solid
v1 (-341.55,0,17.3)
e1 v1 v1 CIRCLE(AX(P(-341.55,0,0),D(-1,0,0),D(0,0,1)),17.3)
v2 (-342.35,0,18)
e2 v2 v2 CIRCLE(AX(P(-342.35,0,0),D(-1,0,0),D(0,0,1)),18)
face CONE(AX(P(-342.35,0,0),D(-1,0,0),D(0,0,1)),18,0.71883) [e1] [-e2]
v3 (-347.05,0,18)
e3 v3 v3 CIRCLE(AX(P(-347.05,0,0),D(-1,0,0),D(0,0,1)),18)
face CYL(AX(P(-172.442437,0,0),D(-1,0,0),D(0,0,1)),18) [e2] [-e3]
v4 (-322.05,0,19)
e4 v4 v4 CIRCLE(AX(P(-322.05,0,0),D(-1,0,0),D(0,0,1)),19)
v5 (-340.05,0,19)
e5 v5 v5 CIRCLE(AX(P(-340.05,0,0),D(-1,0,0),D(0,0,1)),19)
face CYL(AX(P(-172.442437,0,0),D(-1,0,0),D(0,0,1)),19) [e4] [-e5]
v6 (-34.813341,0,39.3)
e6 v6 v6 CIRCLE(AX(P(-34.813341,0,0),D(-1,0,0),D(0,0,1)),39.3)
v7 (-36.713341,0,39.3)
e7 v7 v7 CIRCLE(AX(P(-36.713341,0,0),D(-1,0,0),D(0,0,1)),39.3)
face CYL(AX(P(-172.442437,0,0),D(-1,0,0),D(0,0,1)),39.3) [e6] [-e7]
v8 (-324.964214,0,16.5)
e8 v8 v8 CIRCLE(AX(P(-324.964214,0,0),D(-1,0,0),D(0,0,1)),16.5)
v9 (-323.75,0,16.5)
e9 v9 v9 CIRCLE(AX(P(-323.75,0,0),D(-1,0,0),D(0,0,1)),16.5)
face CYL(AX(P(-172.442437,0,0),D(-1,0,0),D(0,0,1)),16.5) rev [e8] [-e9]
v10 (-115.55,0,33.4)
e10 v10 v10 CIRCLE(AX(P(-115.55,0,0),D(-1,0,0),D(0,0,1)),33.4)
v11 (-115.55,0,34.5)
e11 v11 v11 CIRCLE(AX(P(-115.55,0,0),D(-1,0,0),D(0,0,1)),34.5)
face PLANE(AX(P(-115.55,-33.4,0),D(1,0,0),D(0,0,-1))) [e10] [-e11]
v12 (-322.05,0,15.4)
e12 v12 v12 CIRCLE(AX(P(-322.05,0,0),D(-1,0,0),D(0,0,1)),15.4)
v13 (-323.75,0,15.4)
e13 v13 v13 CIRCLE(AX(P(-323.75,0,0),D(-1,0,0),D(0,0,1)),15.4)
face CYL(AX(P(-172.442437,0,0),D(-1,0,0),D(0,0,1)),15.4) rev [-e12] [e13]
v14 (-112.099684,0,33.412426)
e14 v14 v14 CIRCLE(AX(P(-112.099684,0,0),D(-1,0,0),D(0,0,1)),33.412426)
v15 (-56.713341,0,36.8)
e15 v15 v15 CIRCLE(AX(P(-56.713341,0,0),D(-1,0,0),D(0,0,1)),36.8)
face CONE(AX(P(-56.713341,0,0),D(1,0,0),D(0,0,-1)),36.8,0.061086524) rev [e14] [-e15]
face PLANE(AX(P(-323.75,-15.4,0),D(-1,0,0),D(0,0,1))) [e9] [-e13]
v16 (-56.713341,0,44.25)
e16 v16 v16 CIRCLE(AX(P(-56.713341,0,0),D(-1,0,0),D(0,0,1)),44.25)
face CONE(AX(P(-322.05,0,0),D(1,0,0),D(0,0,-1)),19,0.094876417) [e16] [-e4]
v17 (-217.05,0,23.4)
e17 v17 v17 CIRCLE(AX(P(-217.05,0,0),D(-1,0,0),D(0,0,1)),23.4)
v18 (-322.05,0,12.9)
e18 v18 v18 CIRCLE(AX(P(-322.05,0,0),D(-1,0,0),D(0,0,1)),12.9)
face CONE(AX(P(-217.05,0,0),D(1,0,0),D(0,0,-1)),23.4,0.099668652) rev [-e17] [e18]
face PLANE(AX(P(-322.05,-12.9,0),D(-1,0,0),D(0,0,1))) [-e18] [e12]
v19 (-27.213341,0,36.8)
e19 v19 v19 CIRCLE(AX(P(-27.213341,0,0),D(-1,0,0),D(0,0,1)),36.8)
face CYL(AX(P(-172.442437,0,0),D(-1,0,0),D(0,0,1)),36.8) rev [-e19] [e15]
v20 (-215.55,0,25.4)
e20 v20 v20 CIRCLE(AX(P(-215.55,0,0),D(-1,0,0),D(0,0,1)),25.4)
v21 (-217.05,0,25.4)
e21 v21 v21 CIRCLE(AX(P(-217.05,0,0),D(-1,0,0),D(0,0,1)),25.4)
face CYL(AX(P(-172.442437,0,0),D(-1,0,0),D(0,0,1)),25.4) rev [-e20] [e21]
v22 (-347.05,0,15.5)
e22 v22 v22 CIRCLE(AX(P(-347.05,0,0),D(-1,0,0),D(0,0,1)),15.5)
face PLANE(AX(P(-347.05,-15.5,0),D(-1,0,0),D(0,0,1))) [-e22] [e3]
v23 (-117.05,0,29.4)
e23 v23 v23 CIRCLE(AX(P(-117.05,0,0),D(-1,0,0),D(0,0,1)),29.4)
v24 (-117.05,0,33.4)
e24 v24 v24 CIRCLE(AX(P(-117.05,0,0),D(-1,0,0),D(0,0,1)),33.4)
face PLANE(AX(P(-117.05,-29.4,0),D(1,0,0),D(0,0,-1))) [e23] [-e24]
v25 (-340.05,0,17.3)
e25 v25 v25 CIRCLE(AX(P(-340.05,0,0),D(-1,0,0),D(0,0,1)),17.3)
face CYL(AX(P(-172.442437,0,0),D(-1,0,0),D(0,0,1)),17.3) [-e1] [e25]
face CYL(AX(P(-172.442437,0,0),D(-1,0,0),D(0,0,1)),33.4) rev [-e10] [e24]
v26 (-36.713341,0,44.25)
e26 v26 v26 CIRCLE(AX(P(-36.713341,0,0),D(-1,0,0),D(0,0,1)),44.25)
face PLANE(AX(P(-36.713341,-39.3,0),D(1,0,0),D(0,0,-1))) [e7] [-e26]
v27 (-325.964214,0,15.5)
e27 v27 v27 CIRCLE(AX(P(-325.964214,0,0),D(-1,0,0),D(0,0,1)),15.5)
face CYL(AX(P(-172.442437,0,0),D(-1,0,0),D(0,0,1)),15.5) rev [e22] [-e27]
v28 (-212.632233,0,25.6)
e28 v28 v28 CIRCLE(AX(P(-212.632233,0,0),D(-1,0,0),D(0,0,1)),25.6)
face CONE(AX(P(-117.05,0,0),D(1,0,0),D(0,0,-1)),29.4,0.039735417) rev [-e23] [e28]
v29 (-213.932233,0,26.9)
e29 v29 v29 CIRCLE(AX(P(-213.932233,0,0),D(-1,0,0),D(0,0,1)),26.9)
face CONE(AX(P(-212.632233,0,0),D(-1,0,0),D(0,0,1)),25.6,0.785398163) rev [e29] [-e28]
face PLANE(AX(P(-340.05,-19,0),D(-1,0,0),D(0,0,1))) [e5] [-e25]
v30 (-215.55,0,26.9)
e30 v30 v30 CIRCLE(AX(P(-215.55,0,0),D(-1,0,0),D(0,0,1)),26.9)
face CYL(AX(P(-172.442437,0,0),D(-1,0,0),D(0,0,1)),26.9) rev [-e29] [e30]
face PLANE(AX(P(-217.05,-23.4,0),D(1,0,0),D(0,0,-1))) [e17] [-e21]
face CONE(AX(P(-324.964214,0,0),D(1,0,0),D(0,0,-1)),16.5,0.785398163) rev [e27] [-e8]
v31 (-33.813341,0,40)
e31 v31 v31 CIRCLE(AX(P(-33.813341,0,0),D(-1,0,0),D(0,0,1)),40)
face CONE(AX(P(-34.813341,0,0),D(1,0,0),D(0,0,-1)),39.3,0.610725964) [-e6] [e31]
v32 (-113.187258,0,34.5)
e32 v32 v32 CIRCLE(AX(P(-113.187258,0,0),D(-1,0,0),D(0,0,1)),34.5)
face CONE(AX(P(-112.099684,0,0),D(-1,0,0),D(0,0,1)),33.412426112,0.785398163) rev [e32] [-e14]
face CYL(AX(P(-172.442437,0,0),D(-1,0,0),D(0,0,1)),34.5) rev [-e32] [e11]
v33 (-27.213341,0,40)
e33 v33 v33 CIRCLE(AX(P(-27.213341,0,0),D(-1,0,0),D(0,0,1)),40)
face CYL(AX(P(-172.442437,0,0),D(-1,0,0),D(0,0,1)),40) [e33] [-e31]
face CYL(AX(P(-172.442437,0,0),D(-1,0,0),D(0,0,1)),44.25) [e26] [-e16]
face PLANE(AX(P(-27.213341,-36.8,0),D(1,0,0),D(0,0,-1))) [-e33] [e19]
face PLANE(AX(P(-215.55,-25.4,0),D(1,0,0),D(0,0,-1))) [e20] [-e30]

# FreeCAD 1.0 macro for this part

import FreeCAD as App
import Part
import Sketcher
Q = App.Units.Quantity


def add_polygon(sketch, points):
    """Adds a closed chain of lines whose ends are joined by coincident constraints."""
    first, n = sketch.GeometryCount, len(points)
    for a, b in zip(points, points[1:] + points[:1]):
        sketch.addGeometry(Part.LineSegment(App.Vector(*a, 0), App.Vector(*b, 0)), False)
    for i in range(n):
        sketch.addConstraint(Sketcher.Constraint("Coincident", first + i, 2, first + (i + 1) % n, 1))

doc = App.newDocument("Part")
params = doc.addObject("Spreadsheet::Sheet", "Params")
for row, (alias, value) in enumerate([
    ("sketch1_width", "20 mm"),
    ("sketch1_width2", "18 mm"),
    ("sketch1_height", "4 mm"),
    ("sketch1_height2", "2 mm"),
    ("sketch1_width3", "1.9 mm"),
    ("revolution_angle", "360 deg"),
], start=1):
    params.set(f"A{row}", alias)
    params.set(f"B{row}", "=" + value)
    params.setAlias(f"B{row}", alias)

body = doc.addObject("PartDesign::Body", "Body")

# Sketch on XY plane
sketch1 = doc.addObject("Sketcher::SketchObject", "Sketch")
body.addObject(sketch1)
sketch1.AttachmentSupport = (doc.XY_Plane, [""])
sketch1.MapMode = "FlatFace"
add_polygon(sketch1, [(-56.7, -44.2), (-36.7, -44.2), (-36.7, -39.3), (-34.8, -39.3), (-33.8, -40), (-27.2, -40), (-27.2, -36.8), (-56.7, -36.8), (-112.1, -33.4), (-113.2, -34.5), (-115.5, -34.5), (-115.5, -33.4), (-117, -33.4), (-117, -29.4), (-212.6, -25.6), (-213.9, -26.9), (-215.6, -26.9), (-215.6, -25.4), (-217.1, -25.4), (-217.1, -23.4), (-322.1, -12.9), (-322.1, -15.4), (-323.8, -15.4), (-323.8, -16.5), (-325, -16.5), (-326, -15.5), (-347.1, -15.5), (-347.1, -18), (-342.4, -18), (-341.6, -17.3), (-340.1, -17.3), (-340.1, -19), (-322.1, -19)])  # lines 0-32
sketch1.addConstraint([
    Sketcher.Constraint("Horizontal", 0),
    Sketcher.Constraint("Vertical", 1),
    Sketcher.Constraint("Horizontal", 2),
    Sketcher.Constraint("Horizontal", 4),
    Sketcher.Constraint("Vertical", 5),
    Sketcher.Constraint("Horizontal", 6),
    Sketcher.Constraint("Horizontal", 9),
    Sketcher.Constraint("Vertical", 10),
    Sketcher.Constraint("Horizontal", 11),
    Sketcher.Constraint("Vertical", 12),
    Sketcher.Constraint("Horizontal", 15),
    Sketcher.Constraint("Vertical", 16),
    Sketcher.Constraint("Horizontal", 17),
    Sketcher.Constraint("Vertical", 18),
    Sketcher.Constraint("Vertical", 20),
    Sketcher.Constraint("Horizontal", 21),
    Sketcher.Constraint("Vertical", 22),
    Sketcher.Constraint("Horizontal", 23),
    Sketcher.Constraint("Horizontal", 25),
    Sketcher.Constraint("Vertical", 26),
    Sketcher.Constraint("Horizontal", 27),
    Sketcher.Constraint("Horizontal", 29),
    Sketcher.Constraint("Vertical", 30),
    Sketcher.Constraint("Horizontal", 31),
    Sketcher.Constraint("Parallel", 8, 14),
    Sketcher.Constraint("Perpendicular", 14, 24),
    Sketcher.Constraint("Vertical", 20, 2, 31, 2),
    Sketcher.Constraint("Vertical", 6, 2, 32, 2),
    Sketcher.Constraint("Equal", 11, 17),
    Sketcher.Constraint("Equal", 17, 29),
    Sketcher.Constraint("Equal", 29, 16),
    Sketcher.Constraint("Equal", 10, 22),
    Sketcher.Constraint("Equal", 20, 26),
    Sketcher.Constraint("Equal", 21, 30),
    Sketcher.Constraint("DistanceX", 0, 1, 0, 2, 20.0),
    Sketcher.Constraint("DistanceX", 31, 1, 31, 2, 18.0),
    Sketcher.Constraint("DistanceY", 12, 1, 12, 2, 4.0),
    Sketcher.Constraint("DistanceY", 18, 1, 18, 2, 2.0),
    Sketcher.Constraint("Angle", 8, Q("-135 deg")),
    Sketcher.Constraint("DistanceX", 2, 1, 2, 2, 1.9),
    Sketcher.Constraint("DistanceX", 4, 1, 4, 2, 6.6),
    Sketcher.Constraint("DistanceX", 6, 2, 6, 1, 29.5),
    Sketcher.Constraint("DistanceX", 11, 2, 11, 1, 1.5),
    Sketcher.Constraint("DistanceX", 21, 2, 21, 1, 1.7),
    Sketcher.Constraint("DistanceX", 27, 1, 27, 2, 4.7),
    Sketcher.Constraint("DistanceY", 5, 1, 5, 2, 3.2),
    Sketcher.Constraint("DistanceY", 10, 1, 10, 2, 1.1),
    Sketcher.Constraint("DistanceY", 20, 2, 20, 1, 2.5),
    Sketcher.Constraint("DistanceY", 3, 2, -1, 1, 40.0),
    Sketcher.Constraint("DistanceY", 26, 2, -1, 1, 18.0),
    Sketcher.Constraint("DistanceY", 30, 2, -1, 1, 19.0),
    Sketcher.Constraint("Angle", 7, Q("176.5 deg")),
    Sketcher.Constraint("DistanceX", 15, 2, 10, 2, 100.0),
    Sketcher.Constraint("DistanceY", 12, 2, 16, 2, 4.0),
    Sketcher.Constraint("DistanceX", 19, 2, 18, 2, 105.0),
    Sketcher.Constraint("DistanceY", 15, 2, 19, 2, 14.0),
    Sketcher.Constraint("DistanceX", 24, 2, 23, 2, 1.0),
    Sketcher.Constraint("DistanceX", 25, 2, 20, 2, 25.0),
    Sketcher.Constraint("DistanceY", 1, 1, 1, 2, 4.95),
    Sketcher.Constraint("DistanceY", 1, 2, -1, 1, 39.3),
    Sketcher.Constraint("DistanceY", 13, 2, -1, 1, 25.6),
    Sketcher.Constraint("DistanceX", 9, 2, -1, 1, 115.55),
    Sketcher.Constraint("DistanceX", 9, 2, 9, 1, 2.362742),
    Sketcher.Constraint("Distance", 8, 1.538062),
    Sketcher.Constraint("Distance", 13, 95.65774),
    Sketcher.Constraint("DistanceX", 23, 2, 23, 1, 1.214214),
])
sketch1.setExpression("Constraints[67]", "Params.sketch1_width")
sketch1.setExpression("Constraints[68]", "Params.sketch1_width2")
sketch1.setExpression("Constraints[69]", "Params.sketch1_height")
sketch1.setExpression("Constraints[70]", "Params.sketch1_height2")
sketch1.setExpression("Constraints[72]", "Params.sketch1_width3")
revolution = doc.addObject("PartDesign::Revolution", "Revolution")
body.addObject(revolution)
revolution.Profile = sketch1
revolution.ReferenceAxis = (sketch1, ["H_Axis"])
revolution.setExpression("Angle", "Params.revolution_angle")

doc.recompute()
